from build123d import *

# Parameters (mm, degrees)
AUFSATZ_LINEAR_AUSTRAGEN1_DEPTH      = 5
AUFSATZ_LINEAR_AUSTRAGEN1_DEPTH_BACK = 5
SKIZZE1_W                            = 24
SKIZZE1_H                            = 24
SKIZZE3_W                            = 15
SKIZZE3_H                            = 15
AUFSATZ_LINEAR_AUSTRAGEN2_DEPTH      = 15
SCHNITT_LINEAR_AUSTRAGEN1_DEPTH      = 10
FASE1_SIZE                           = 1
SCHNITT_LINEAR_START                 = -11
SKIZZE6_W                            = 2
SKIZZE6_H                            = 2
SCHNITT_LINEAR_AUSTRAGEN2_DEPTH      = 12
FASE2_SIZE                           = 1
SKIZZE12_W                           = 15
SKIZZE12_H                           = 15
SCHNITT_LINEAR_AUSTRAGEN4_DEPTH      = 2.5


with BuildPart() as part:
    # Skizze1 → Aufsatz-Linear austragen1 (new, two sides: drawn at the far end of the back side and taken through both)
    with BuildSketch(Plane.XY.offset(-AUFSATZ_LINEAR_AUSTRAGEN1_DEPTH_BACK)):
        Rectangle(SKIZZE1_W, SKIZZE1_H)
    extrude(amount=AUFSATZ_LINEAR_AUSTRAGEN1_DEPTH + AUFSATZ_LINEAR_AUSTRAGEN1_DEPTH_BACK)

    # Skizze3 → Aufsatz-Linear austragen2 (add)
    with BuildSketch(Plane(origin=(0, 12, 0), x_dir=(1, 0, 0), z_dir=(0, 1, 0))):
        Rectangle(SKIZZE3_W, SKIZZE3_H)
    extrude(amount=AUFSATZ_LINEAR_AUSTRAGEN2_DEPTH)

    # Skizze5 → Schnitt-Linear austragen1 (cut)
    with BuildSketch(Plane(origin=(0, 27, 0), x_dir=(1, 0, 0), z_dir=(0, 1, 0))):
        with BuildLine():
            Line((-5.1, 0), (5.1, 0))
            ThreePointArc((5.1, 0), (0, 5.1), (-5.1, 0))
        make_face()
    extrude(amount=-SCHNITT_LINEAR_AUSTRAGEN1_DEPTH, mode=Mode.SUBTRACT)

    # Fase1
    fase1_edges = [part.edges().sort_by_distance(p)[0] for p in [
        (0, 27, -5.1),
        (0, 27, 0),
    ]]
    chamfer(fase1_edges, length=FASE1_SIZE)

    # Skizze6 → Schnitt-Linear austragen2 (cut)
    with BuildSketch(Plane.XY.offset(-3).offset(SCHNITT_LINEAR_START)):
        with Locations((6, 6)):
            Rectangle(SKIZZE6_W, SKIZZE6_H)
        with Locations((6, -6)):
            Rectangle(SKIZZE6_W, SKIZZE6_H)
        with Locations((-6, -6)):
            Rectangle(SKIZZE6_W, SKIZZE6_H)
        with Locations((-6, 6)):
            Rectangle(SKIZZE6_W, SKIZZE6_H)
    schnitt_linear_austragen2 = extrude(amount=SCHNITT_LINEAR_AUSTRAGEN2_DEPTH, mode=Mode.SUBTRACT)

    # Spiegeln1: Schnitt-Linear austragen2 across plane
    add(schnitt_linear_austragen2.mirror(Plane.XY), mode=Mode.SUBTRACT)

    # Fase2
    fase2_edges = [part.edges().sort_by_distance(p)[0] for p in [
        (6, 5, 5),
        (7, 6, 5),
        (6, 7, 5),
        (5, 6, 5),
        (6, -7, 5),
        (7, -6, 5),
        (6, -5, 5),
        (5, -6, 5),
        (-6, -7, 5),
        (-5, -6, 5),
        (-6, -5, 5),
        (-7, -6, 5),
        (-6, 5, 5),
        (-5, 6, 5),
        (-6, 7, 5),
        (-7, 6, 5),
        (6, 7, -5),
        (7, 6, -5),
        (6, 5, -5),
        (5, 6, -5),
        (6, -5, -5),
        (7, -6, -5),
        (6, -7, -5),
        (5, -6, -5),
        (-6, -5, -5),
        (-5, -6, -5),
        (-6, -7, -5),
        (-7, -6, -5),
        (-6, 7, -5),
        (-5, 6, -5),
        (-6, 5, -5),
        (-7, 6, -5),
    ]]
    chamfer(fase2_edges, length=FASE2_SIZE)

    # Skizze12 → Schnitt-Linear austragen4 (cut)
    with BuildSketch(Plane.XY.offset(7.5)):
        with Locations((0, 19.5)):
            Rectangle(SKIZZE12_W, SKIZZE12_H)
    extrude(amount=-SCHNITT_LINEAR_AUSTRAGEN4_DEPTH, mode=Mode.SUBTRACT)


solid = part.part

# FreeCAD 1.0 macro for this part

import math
import FreeCAD as App
import Part
import Sketcher
from FreeCAD import Vector
Q = App.Units.Quantity


def edges_at(feature, points):
    """Names of the edges that pass closest to the given points."""
    edges = feature.Shape.Edges
    near = lambda p: min(range(len(edges)), key=lambda i: edges[i].distToShape(Part.Vertex(*p))[0])
    return sorted({f"Edge{near(p) + 1}" for p in points})

doc = App.newDocument("Part")
body = doc.addObject("PartDesign::Body", "Body")

sketch1 = body.newObject("Sketcher::SketchObject", "Sketch")
sketch1.AttachmentSupport = (doc.getObject("XY_Plane"), [""])
sketch1.MapMode = "FlatFace"
sketch1.addGeometry(Part.LineSegment(Vector(-12, 12, 0), Vector(-12, -12, 0)), False)
sketch1.addGeometry(Part.LineSegment(Vector(-12, -12, 0), Vector(12, -12, 0)), False)
sketch1.addGeometry(Part.LineSegment(Vector(12, -12, 0), Vector(12, 12, 0)), False)
sketch1.addGeometry(Part.LineSegment(Vector(12, 12, 0), Vector(-12, 12, 0)), False)
sketch1.addConstraint(Sketcher.Constraint("Coincident", 0, 2, 1, 1))
sketch1.addConstraint(Sketcher.Constraint("Coincident", 1, 2, 2, 1))
sketch1.addConstraint(Sketcher.Constraint("Coincident", 2, 2, 3, 1))
sketch1.addConstraint(Sketcher.Constraint("Coincident", 3, 2, 0, 1))
sketch1.addConstraint(Sketcher.Constraint("Vertical", 0))
sketch1.addConstraint(Sketcher.Constraint("Horizontal", 1))
sketch1.addConstraint(Sketcher.Constraint("Vertical", 2))
sketch1.addConstraint(Sketcher.Constraint("Horizontal", 3))
sketch1.addConstraint(Sketcher.Constraint("Symmetric", 0, 2, 2, 2, -1, 1))
sketch1.addConstraint(Sketcher.Constraint("Equal", 3, 0))
sketch1.addConstraint(Sketcher.Constraint("DistanceX", 1, 1, 1, 2, Q("24 mm")))
pad1 = body.newObject("PartDesign::Pad", "Pad")
pad1.Profile = sketch1
pad1.Type = "TwoLengths"
pad1.Length = 5
pad1.Length2 = 5

sketch2 = body.newObject("Sketcher::SketchObject", "Sketch001")
sketch2.AttachmentSupport = (doc.getObject("XZ_Plane"), [""])
sketch2.MapMode = "FlatFace"
sketch2.AttachmentOffset = App.Placement(Vector(0, 0, -12), App.Rotation())
sketch2.addGeometry(Part.LineSegment(Vector(-8, -8, 0), Vector(-8, 8, 0)), False)
sketch2.addGeometry(Part.LineSegment(Vector(-8, 8, 0), Vector(8, 8, 0)), False)
sketch2.addGeometry(Part.LineSegment(Vector(8, 8, 0), Vector(8, -8, 0)), False)
sketch2.addGeometry(Part.LineSegment(Vector(8, -8, 0), Vector(-8, -8, 0)), False)
sketch2.addConstraint(Sketcher.Constraint("Coincident", 0, 2, 1, 1))
sketch2.addConstraint(Sketcher.Constraint("Coincident", 1, 2, 2, 1))
sketch2.addConstraint(Sketcher.Constraint("Coincident", 2, 2, 3, 1))
sketch2.addConstraint(Sketcher.Constraint("Coincident", 3, 2, 0, 1))
sketch2.addConstraint(Sketcher.Constraint("Vertical", 0))
sketch2.addConstraint(Sketcher.Constraint("Horizontal", 1))
sketch2.addConstraint(Sketcher.Constraint("Vertical", 2))
sketch2.addConstraint(Sketcher.Constraint("Horizontal", 3))
sketch2.addConstraint(Sketcher.Constraint("Symmetric", 0, 2, 2, 2, -1, 1))
sketch2.addConstraint(Sketcher.Constraint("Equal", 3, 0))
sketch2.addConstraint(Sketcher.Constraint("DistanceX", 1, 1, 1, 2, Q("15 mm")))
pad2 = body.newObject("PartDesign::Pad", "Pad001")
pad2.Profile = sketch2
pad2.Length = 15
pad2.Reversed = True

sketch3 = body.newObject("Sketcher::SketchObject", "Sketch002")
sketch3.AttachmentSupport = (doc.getObject("XZ_Plane"), [""])
sketch3.MapMode = "FlatFace"
sketch3.AttachmentOffset = App.Placement(Vector(0, 0, -27), App.Rotation())
sketch3.addGeometry(Part.LineSegment(Vector(-5, 0, 0), Vector(5, 0, 0)), False)
sketch3.addGeometry(Part.ArcOfCircle(Part.Circle(Vector(0, 0, 0), Vector(0, 0, 1), 5), math.radians(180), math.radians(360)), False)
sketch3.addConstraint(Sketcher.Constraint("Coincident", 0, 1, 1, 1))
sketch3.addConstraint(Sketcher.Constraint("Coincident", 1, 2, 0, 2))
sketch3.addConstraint(Sketcher.Constraint("Horizontal", 0))
sketch3.addConstraint(Sketcher.Constraint("Coincident", 1, 3, -1, 1))
sketch3.addConstraint(Sketcher.Constraint("PointOnObject", 0, 1, -1))
sketch3.addConstraint(Sketcher.Constraint("Radius", 1, Q("5.1 mm")))
pocket1 = body.newObject("PartDesign::Pocket", "Pocket")
pocket1.Profile = sketch3
pocket1.Length = 10
pocket1.Reversed = True
doc.recompute()

chamfer = body.newObject("PartDesign::Chamfer", "Chamfer")
chamfer.Base = (pocket1, edges_at(pocket1, [(0, 27, -5.1), (0, 27, 0)]))
chamfer.Size = 1

sketch4 = body.newObject("Sketcher::SketchObject", "Sketch003")
sketch4.AttachmentSupport = (doc.getObject("XY_Plane"), [""])
sketch4.MapMode = "FlatFace"
sketch4.AttachmentOffset = App.Placement(Vector(0, 0, -14), App.Rotation())
sketch4.addGeometry(Part.LineSegment(Vector(5, 7, 0), Vector(5, 5, 0)), False)
sketch4.addGeometry(Part.LineSegment(Vector(5, 5, 0), Vector(7, 5, 0)), False)
sketch4.addGeometry(Part.LineSegment(Vector(7, 5, 0), Vector(7, 7, 0)), False)
sketch4.addGeometry(Part.LineSegment(Vector(7, 7, 0), Vector(5, 7, 0)), False)
sketch4.addGeometry(Part.LineSegment(Vector(5, -5, 0), Vector(5, -7, 0)), False)
sketch4.addGeometry(Part.LineSegment(Vector(5, -7, 0), Vector(7, -7, 0)), False)
sketch4.addGeometry(Part.LineSegment(Vector(7, -7, 0), Vector(7, -5, 0)), False)
sketch4.addGeometry(Part.LineSegment(Vector(7, -5, 0), Vector(5, -5, 0)), False)
sketch4.addGeometry(Part.LineSegment(Vector(-7, -5, 0), Vector(-7, -7, 0)), False)
sketch4.addGeometry(Part.LineSegment(Vector(-7, -7, 0), Vector(-5, -7, 0)), False)
sketch4.addGeometry(Part.LineSegment(Vector(-5, -7, 0), Vector(-5, -5, 0)), False)
sketch4.addGeometry(Part.LineSegment(Vector(-5, -5, 0), Vector(-7, -5, 0)), False)
sketch4.addGeometry(Part.LineSegment(Vector(-7, 7, 0), Vector(-7, 5, 0)), False)
sketch4.addGeometry(Part.LineSegment(Vector(-7, 5, 0), Vector(-5, 5, 0)), False)
sketch4.addGeometry(Part.LineSegment(Vector(-5, 5, 0), Vector(-5, 7, 0)), False)
sketch4.addGeometry(Part.LineSegment(Vector(-5, 7, 0), Vector(-7, 7, 0)), False)
sketch4.addConstraint(Sketcher.Constraint("Coincident", 0, 2, 1, 1))
sketch4.addConstraint(Sketcher.Constraint("Coincident", 1, 2, 2, 1))
sketch4.addConstraint(Sketcher.Constraint("Coincident", 2, 2, 3, 1))
sketch4.addConstraint(Sketcher.Constraint("Coincident", 3, 2, 0, 1))
sketch4.addConstraint(Sketcher.Constraint("Coincident", 4, 2, 5, 1))
sketch4.addConstraint(Sketcher.Constraint("Coincident", 5, 2, 6, 1))
sketch4.addConstraint(Sketcher.Constraint("Coincident", 6, 2, 7, 1))
sketch4.addConstraint(Sketcher.Constraint("Coincident", 7, 2, 4, 1))
sketch4.addConstraint(Sketcher.Constraint("Coincident", 8, 2, 9, 1))
sketch4.addConstraint(Sketcher.Constraint("Coincident", 9, 2, 10, 1))
sketch4.addConstraint(Sketcher.Constraint("Coincident", 10, 2, 11, 1))
sketch4.addConstraint(Sketcher.Constraint("Coincident", 11, 2, 8, 1))
sketch4.addConstraint(Sketcher.Constraint("Coincident", 12, 2, 13, 1))
sketch4.addConstraint(Sketcher.Constraint("Coincident", 13, 2, 14, 1))
sketch4.addConstraint(Sketcher.Constraint("Coincident", 14, 2, 15, 1))
sketch4.addConstraint(Sketcher.Constraint("Coincident", 15, 2, 12, 1))
sketch4.addConstraint(Sketcher.Constraint("Vertical", 0))
sketch4.addConstraint(Sketcher.Constraint("Horizontal", 1))
sketch4.addConstraint(Sketcher.Constraint("Vertical", 2))
sketch4.addConstraint(Sketcher.Constraint("Horizontal", 3))
sketch4.addConstraint(Sketcher.Constraint("Vertical", 4))
sketch4.addConstraint(Sketcher.Constraint("Horizontal", 5))
sketch4.addConstraint(Sketcher.Constraint("Vertical", 6))
sketch4.addConstraint(Sketcher.Constraint("Horizontal", 7))
sketch4.addConstraint(Sketcher.Constraint("Vertical", 8))
sketch4.addConstraint(Sketcher.Constraint("Horizontal", 9))
sketch4.addConstraint(Sketcher.Constraint("Vertical", 10))
sketch4.addConstraint(Sketcher.Constraint("Horizontal", 11))
sketch4.addConstraint(Sketcher.Constraint("Vertical", 12))
sketch4.addConstraint(Sketcher.Constraint("Horizontal", 13))
sketch4.addConstraint(Sketcher.Constraint("Vertical", 14))
sketch4.addConstraint(Sketcher.Constraint("Horizontal", 15))
sketch4.addConstraint(Sketcher.Constraint("Symmetric", 2, 2, 8, 2, -1, 1))
sketch4.addConstraint(Sketcher.Constraint("Symmetric", 0, 2, 10, 2, -1, 1))
sketch4.addConstraint(Sketcher.Constraint("Symmetric", 6, 2, 12, 2, -1, 1))
sketch4.addConstraint(Sketcher.Constraint("Symmetric", 4, 2, 14, 2, -1, 1))
sketch4.addConstraint(Sketcher.Constraint("Symmetric", 5, 2, 8, 2, -2))
sketch4.addConstraint(Sketcher.Constraint("Symmetric", 7, 2, 10, 2, -2))
sketch4.addConstraint(Sketcher.Constraint("Equal", 15, 0))
sketch4.addConstraint(Sketcher.Constraint("DistanceX", 1, 1, 1, 2, Q("2 mm")))
sketch4.addConstraint(Sketcher.Constraint("DistanceX", -1, 1, 0, 2, Q("5 mm")))
sketch4.addConstraint(Sketcher.Constraint("DistanceY", -1, 1, 0, 2, Q("5 mm")))
pocket2 = body.newObject("PartDesign::Pocket", "Pocket001")
pocket2.Profile = sketch4
pocket2.Length = 12
pocket2.Reversed = True
doc.recompute()

mirrored = body.newObject("PartDesign::Mirrored", "Mirrored")
mirrored.Originals = [pocket2]
mirrored.MirrorPlane = (doc.getObject("XY_Plane"), [""])
body.Tip = mirrored
doc.recompute()

chamfer2 = body.newObject("PartDesign::Chamfer", "Chamfer001")
chamfer2.Base = (mirrored, edges_at(mirrored, [
    (6, 5, 5),
    (7, 6, 5),
    (6, 7, 5),
    (5, 6, 5),
    (6, -7, 5),
    (7, -6, 5),
    (6, -5, 5),
    (5, -6, 5),
    (-6, -7, 5),
    (-5, -6, 5),
    (-6, -5, 5),
    (-7, -6, 5),
    (-6, 5, 5),
    (-5, 6, 5),
    (-6, 7, 5),
    (-7, 6, 5),
    (6, 7, -5),
    (7, 6, -5),
    (6, 5, -5),
    (5, 6, -5),
    (6, -5, -5),
    (7, -6, -5),
    (6, -7, -5),
    (5, -6, -5),
    (-6, -5, -5),
    (-5, -6, -5),
    (-6, -7, -5),
    (-7, -6, -5),
    (-6, 7, -5),
    (-5, 6, -5),
    (-6, 5, -5),
    (-7, 6, -5),
]))
chamfer2.Size = 1

sketch5 = body.newObject("Sketcher::SketchObject", "Sketch004")
sketch5.AttachmentSupport = (doc.getObject("XY_Plane"), [""])
sketch5.MapMode = "FlatFace"
sketch5.AttachmentOffset = App.Placement(Vector(0, 0, 7.5), App.Rotation())
sketch5.addGeometry(Part.LineSegment(Vector(-8, 27, 0), Vector(-8, 12, 0)), False)
sketch5.addGeometry(Part.LineSegment(Vector(-8, 12, 0), Vector(8, 12, 0)), False)
sketch5.addGeometry(Part.LineSegment(Vector(8, 12, 0), Vector(8, 27, 0)), False)
sketch5.addGeometry(Part.LineSegment(Vector(8, 27, 0), Vector(-8, 27, 0)), False)
sketch5.addConstraint(Sketcher.Constraint("Coincident", 0, 2, 1, 1))
sketch5.addConstraint(Sketcher.Constraint("Coincident", 1, 2, 2, 1))
sketch5.addConstraint(Sketcher.Constraint("Coincident", 2, 2, 3, 1))
sketch5.addConstraint(Sketcher.Constraint("Coincident", 3, 2, 0, 1))
sketch5.addConstraint(Sketcher.Constraint("Vertical", 0))
sketch5.addConstraint(Sketcher.Constraint("Horizontal", 1))
sketch5.addConstraint(Sketcher.Constraint("Vertical", 2))
sketch5.addConstraint(Sketcher.Constraint("Horizontal", 3))
sketch5.addConstraint(Sketcher.Constraint("Equal", 3, 0))
sketch5.addConstraint(Sketcher.Constraint("DistanceX", 1, 1, 1, 2, Q("15 mm")))
sketch5.addConstraint(Sketcher.Constraint("DistanceY", -1, 1, 0, 2, Q("12 mm")))
sketch5.addConstraint(Sketcher.Constraint("DistanceX", 0, 2, -1, 1, Q("7.5 mm")))
pocket3 = body.newObject("PartDesign::Pocket", "Pocket002")
pocket3.Profile = sketch5
pocket3.Length = 2.5

doc.recompute()
